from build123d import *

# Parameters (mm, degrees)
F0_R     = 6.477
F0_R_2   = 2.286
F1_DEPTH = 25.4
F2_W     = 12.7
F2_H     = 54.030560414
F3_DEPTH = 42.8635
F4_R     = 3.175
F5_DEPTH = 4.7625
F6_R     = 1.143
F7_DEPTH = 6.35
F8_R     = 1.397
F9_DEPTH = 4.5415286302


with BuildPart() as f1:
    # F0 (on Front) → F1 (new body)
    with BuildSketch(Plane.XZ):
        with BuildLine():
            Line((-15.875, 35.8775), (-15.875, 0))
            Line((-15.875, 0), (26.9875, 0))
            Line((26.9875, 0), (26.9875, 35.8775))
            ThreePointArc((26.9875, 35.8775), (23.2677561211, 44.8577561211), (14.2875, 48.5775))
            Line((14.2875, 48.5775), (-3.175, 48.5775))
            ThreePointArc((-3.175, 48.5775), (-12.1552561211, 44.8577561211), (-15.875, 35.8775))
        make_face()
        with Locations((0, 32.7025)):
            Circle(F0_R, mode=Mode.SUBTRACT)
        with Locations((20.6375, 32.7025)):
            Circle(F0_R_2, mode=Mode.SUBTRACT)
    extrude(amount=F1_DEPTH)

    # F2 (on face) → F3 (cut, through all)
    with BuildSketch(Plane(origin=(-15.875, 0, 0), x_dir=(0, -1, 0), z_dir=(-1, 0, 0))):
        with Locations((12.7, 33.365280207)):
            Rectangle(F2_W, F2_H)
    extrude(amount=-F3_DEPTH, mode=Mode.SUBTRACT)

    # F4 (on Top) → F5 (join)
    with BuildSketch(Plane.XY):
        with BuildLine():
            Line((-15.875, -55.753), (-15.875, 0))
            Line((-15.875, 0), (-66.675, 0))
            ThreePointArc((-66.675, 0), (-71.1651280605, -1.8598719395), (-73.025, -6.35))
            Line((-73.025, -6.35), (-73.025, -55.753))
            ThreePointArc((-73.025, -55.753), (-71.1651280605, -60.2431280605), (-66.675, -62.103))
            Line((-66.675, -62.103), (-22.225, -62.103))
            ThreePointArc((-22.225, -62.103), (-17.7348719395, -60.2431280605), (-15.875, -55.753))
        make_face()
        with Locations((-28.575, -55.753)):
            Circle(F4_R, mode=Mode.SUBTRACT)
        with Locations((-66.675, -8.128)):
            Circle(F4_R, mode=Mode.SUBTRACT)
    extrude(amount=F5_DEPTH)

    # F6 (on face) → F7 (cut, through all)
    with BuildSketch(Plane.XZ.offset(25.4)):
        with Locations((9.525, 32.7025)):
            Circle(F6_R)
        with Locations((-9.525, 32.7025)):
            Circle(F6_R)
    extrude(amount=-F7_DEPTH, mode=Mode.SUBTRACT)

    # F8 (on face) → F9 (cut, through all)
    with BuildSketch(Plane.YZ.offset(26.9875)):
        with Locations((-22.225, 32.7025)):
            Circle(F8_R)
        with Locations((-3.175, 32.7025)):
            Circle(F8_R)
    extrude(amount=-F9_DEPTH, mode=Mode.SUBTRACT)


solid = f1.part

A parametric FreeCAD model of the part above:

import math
import FreeCAD as App
import Part
import Sketcher
from FreeCAD import Vector
Q = App.Units.Quantity

doc = App.newDocument("Part")
body = doc.addObject("PartDesign::Body", "Body")

# Sketch on XZ plane
sketch1 = doc.addObject("Sketcher::SketchObject", "Sketch")
body.addObject(sketch1)
sketch1.AttachmentSupport = (doc.XZ_Plane, [""])
sketch1.MapMode = "FlatFace"
sketch1.addGeometry(Part.LineSegment(Vector(-15.875, 35.8775, 0), Vector(-15.875, 0, 0)), False)
sketch1.addGeometry(Part.LineSegment(Vector(-15.875, 0, 0), Vector(26.9875, 0, 0)), False)
sketch1.addGeometry(Part.LineSegment(Vector(26.9875, 0, 0), Vector(26.9875, 35.8775, 0)), False)
sketch1.addGeometry(Part.ArcOfCircle(Part.Circle(Vector(14.2875, 35.8775, 0), Vector(0, 0, 1), 12.7), math.radians(0), math.radians(90)), False)
sketch1.addGeometry(Part.LineSegment(Vector(14.2875, 48.5775, 0), Vector(-3.175, 48.5775, 0)), False)
sketch1.addGeometry(Part.ArcOfCircle(Part.Circle(Vector(-3.175, 35.8775, 0), Vector(0, 0, 1), 12.7), math.radians(90), math.radians(180)), False)
sketch1.addGeometry(Part.Circle(Vector(0, 32.7025, 0), Vector(0, 0, 1), 6.477), False)
sketch1.addGeometry(Part.Circle(Vector(20.6375, 32.7025, 0), Vector(0, 0, 1), 2.286), False)
sketch1.addConstraint(Sketcher.Constraint("Coincident", 0, 2, 1, 1))
sketch1.addConstraint(Sketcher.Constraint("Coincident", 1, 2, 2, 1))
sketch1.addConstraint(Sketcher.Constraint("Tangent", 2, 2, 3, 1))
sketch1.addConstraint(Sketcher.Constraint("Tangent", 3, 2, 4, 1))
sketch1.addConstraint(Sketcher.Constraint("Tangent", 4, 2, 5, 1))
sketch1.addConstraint(Sketcher.Constraint("Tangent", 5, 2, 0, 1))
sketch1.addConstraint(Sketcher.Constraint("Vertical", 0))
sketch1.addConstraint(Sketcher.Constraint("Horizontal", 1))
sketch1.addConstraint(Sketcher.Constraint("Vertical", 2))
sketch1.addConstraint(Sketcher.Constraint("Horizontal", 4))
sketch1.addConstraint(Sketcher.Constraint("Equal", 3, 5))
sketch1.addConstraint(Sketcher.Constraint("PointOnObject", 6, 3, -2))
sketch1.addConstraint(Sketcher.Constraint("PointOnObject", 0, 2, -1))
sketch1.addConstraint(Sketcher.Constraint("Horizontal", 6, 3, 7, 3))
sketch1.addConstraint(Sketcher.Constraint("Radius", 3, Q("0.5 in")))
sketch1.addConstraint(Sketcher.Constraint("Diameter", 6, Q("0.51 in")))
sketch1.addConstraint(Sketcher.Constraint("Diameter", 7, Q("0.18 in")))
sketch1.addConstraint(Sketcher.Constraint("DistanceX", 1, 1, 1, 2, Q("1.6875 in")))
sketch1.addConstraint(Sketcher.Constraint("DistanceX", 3, 3, 7, 3, Q("0.25 in")))
sketch1.addConstraint(Sketcher.Constraint("DistanceY", 0, 2, 0, 1, Q("1.4125 in")))
sketch1.addConstraint(Sketcher.Constraint("DistanceX", -1, 1, 3, 3, Q("0.5625 in")))
sketch1.addConstraint(Sketcher.Constraint("DistanceY", 6, 3, 5, 3, Q("0.125 in")))
pad1 = doc.addObject("PartDesign::Pad", "Pad")
body.addObject(pad1)
pad1.Profile = sketch1
pad1.Length = Q("1 in")

# Sketch on YZ plane
sketch2 = doc.addObject("Sketcher::SketchObject", "Sketch001")
body.addObject(sketch2)
sketch2.AttachmentSupport = (doc.YZ_Plane, [""])
sketch2.MapMode = "FlatFace"
sketch2.AttachmentOffset = App.Placement(Vector(0, 0, -0.625 * 25.4), App.Rotation())
sketch2.addGeometry(Part.LineSegment(Vector(-6.35, 60.38056, 0), Vector(-6.35, 6.35, 0)), False)
sketch2.addGeometry(Part.LineSegment(Vector(-6.35, 6.35, 0), Vector(-19.05, 6.35, 0)), False)
sketch2.addGeometry(Part.LineSegment(Vector(-19.05, 6.35, 0), Vector(-19.05, 60.38056, 0)), False)
sketch2.addGeometry(Part.LineSegment(Vector(-19.05, 60.38056, 0), Vector(-6.35, 60.38056, 0)), False)
sketch2.addConstraint(Sketcher.Constraint("Coincident", 0, 2, 1, 1))
sketch2.addConstraint(Sketcher.Constraint("Coincident", 1, 2, 2, 1))
sketch2.addConstraint(Sketcher.Constraint("Coincident", 2, 2, 3, 1))
sketch2.addConstraint(Sketcher.Constraint("Coincident", 3, 2, 0, 1))
sketch2.addConstraint(Sketcher.Constraint("Vertical", 0))
sketch2.addConstraint(Sketcher.Constraint("Horizontal", 1))
sketch2.addConstraint(Sketcher.Constraint("Vertical", 2))
sketch2.addConstraint(Sketcher.Constraint("Horizontal", 3))
sketch2.addConstraint(Sketcher.Constraint("DistanceX", 1, 2, 1, 1, Q("0.5 in")))
sketch2.addConstraint(Sketcher.Constraint("DistanceX", 0, 2, -1, 1, Q("0.25 in")))
sketch2.addConstraint(Sketcher.Constraint("DistanceY", -1, 1, 0, 2, Q("0.25 in")))
sketch2.addConstraint(Sketcher.Constraint("DistanceY", 0, 2, 0, 1, Q("54.03056 mm")))
pocket1 = doc.addObject("PartDesign::Pocket", "Pocket")
body.addObject(pocket1)
pocket1.Profile = sketch2
pocket1.Type = "ThroughAll"
pocket1.Reversed = True

# Sketch on XY plane
sketch3 = doc.addObject("Sketcher::SketchObject", "Sketch002")
body.addObject(sketch3)
sketch3.AttachmentSupport = (doc.XY_Plane, [""])
sketch3.MapMode = "FlatFace"
sketch3.addGeometry(Part.LineSegment(Vector(-15.875, -55.753, 0), Vector(-15.875, 0, 0)), False)
sketch3.addGeometry(Part.LineSegment(Vector(-15.875, 0, 0), Vector(-66.675, 0, 0)), False)
sketch3.addGeometry(Part.ArcOfCircle(Part.Circle(Vector(-66.675, -6.35, 0), Vector(0, 0, 1), 6.35), math.radians(90), math.radians(180)), False)
sketch3.addGeometry(Part.LineSegment(Vector(-73.025, -6.35, 0), Vector(-73.025, -55.753, 0)), False)
sketch3.addGeometry(Part.ArcOfCircle(Part.Circle(Vector(-66.675, -55.753, 0), Vector(0, 0, 1), 6.35), math.radians(180), math.radians(270)), False)
sketch3.addGeometry(Part.LineSegment(Vector(-66.675, -62.103, 0), Vector(-22.225, -62.103, 0)), False)
sketch3.addGeometry(Part.ArcOfCircle(Part.Circle(Vector(-22.225, -55.753, 0), Vector(0, 0, 1), 6.35), math.radians(-90), math.radians(0)), False)
sketch3.addGeometry(Part.Circle(Vector(-28.575, -55.753, 0), Vector(0, 0, 1), 3.175), False)
sketch3.addGeometry(Part.Circle(Vector(-66.675, -8.128, 0), Vector(0, 0, 1), 3.175), False)
sketch3.addConstraint(Sketcher.Constraint("Coincident", 0, 2, 1, 1))
sketch3.addConstraint(Sketcher.Constraint("Tangent", 1, 2, 2, 1))
sketch3.addConstraint(Sketcher.Constraint("Tangent", 2, 2, 3, 1))
sketch3.addConstraint(Sketcher.Constraint("Tangent", 3, 2, 4, 1))
sketch3.addConstraint(Sketcher.Constraint("Tangent", 4, 2, 5, 1))
sketch3.addConstraint(Sketcher.Constraint("Tangent", 5, 2, 6, 1))
sketch3.addConstraint(Sketcher.Constraint("Tangent", 6, 2, 0, 1))
sketch3.addConstraint(Sketcher.Constraint("Vertical", 0))
sketch3.addConstraint(Sketcher.Constraint("Horizontal", 1))
sketch3.addConstraint(Sketcher.Constraint("Vertical", 3))
sketch3.addConstraint(Sketcher.Constraint("Horizontal", 5))
sketch3.addConstraint(Sketcher.Constraint("Equal", 2, 4))
sketch3.addConstraint(Sketcher.Constraint("Equal", 4, 6))
sketch3.addConstraint(Sketcher.Constraint("Equal", 7, 8))
sketch3.addConstraint(Sketcher.Constraint("PointOnObject", 0, 2, -1))
sketch3.addConstraint(Sketcher.Constraint("Horizontal", 6, 3, 7, 3))
sketch3.addConstraint(Sketcher.Constraint("Vertical", 4, 3, 8, 3))
sketch3.addConstraint(Sketcher.Constraint("Diameter", 7, Q("0.25 in")))
sketch3.addConstraint(Sketcher.Constraint("DistanceX", 1, 2, 1, 1, Q("2 in")))
sketch3.addConstraint(Sketcher.Constraint("Radius", 2, Q("0.25 in")))
sketch3.addConstraint(Sketcher.Constraint("DistanceX", 4, 3, 7, 3, Q("1.5 in")))
sketch3.addConstraint(Sketcher.Constraint("DistanceY", 0, 1, 0, 2, Q("2.195 in")))
sketch3.addConstraint(Sketcher.Constraint("DistanceY", 8, 3, -1, 1, Q("0.32 in")))
sketch3.addConstraint(Sketcher.Constraint("DistanceX", 2, 3, -1, 1, Q("2.625 in")))
pad2 = doc.addObject("PartDesign::Pad", "Pad001")
body.addObject(pad2)
pad2.Profile = sketch3
pad2.Length = Q("0.1875 in")

# Sketch on XZ plane
sketch4 = doc.addObject("Sketcher::SketchObject", "Sketch003")
body.addObject(sketch4)
sketch4.AttachmentSupport = (doc.XZ_Plane, [""])
sketch4.MapMode = "FlatFace"
sketch4.AttachmentOffset = App.Placement(Vector(0, 0, 1 * 25.4), App.Rotation())
sketch4.addGeometry(Part.Circle(Vector(9.525, 32.7025, 0), Vector(0, 0, 1), 1.143), False)
sketch4.addGeometry(Part.Circle(Vector(-9.525, 32.7025, 0), Vector(0, 0, 1), 1.143), False)
sketch4.addConstraint(Sketcher.Constraint("Equal", 0, 1))
sketch4.addConstraint(Sketcher.Constraint("Symmetric", 0, 3, 1, 3, -2))
sketch4.addConstraint(Sketcher.Constraint("Diameter", 0, Q("0.09 in")))
sketch4.addConstraint(Sketcher.Constraint("DistanceX", 1, 3, 0, 3, Q("0.75 in")))
sketch4.addConstraint(Sketcher.Constraint("DistanceY", -1, 1, 0, 3, Q("1.2875 in")))
pocket2 = doc.addObject("PartDesign::Pocket", "Pocket001")
body.addObject(pocket2)
pocket2.Profile = sketch4
pocket2.Length = Q("0.25 in")

# Sketch on YZ plane
sketch5 = doc.addObject("Sketcher::SketchObject", "Sketch004")
body.addObject(sketch5)
sketch5.AttachmentSupport = (doc.YZ_Plane, [""])
sketch5.MapMode = "FlatFace"
sketch5.AttachmentOffset = App.Placement(Vector(0, 0, 1.0625 * 25.4), App.Rotation())
sketch5.addGeometry(Part.Circle(Vector(-22.225, 32.7025, 0), Vector(0, 0, 1), 1.397), False)
sketch5.addGeometry(Part.Circle(Vector(-3.175, 32.7025, 0), Vector(0, 0, 1), 1.397), False)
sketch5.addConstraint(Sketcher.Constraint("Equal", 0, 1))
sketch5.addConstraint(Sketcher.Constraint("Horizontal", 0, 3, 1, 3))
sketch5.addConstraint(Sketcher.Constraint("Diameter", 0, Q("0.11 in")))
sketch5.addConstraint(Sketcher.Constraint("DistanceX", 0, 3, 1, 3, Q("0.75 in")))
sketch5.addConstraint(Sketcher.Constraint("DistanceX", 0, 3, -1, 1, Q("0.875 in")))
sketch5.addConstraint(Sketcher.Constraint("DistanceY", -1, 1, 0, 3, Q("1.2875 in")))
pocket3 = doc.addObject("PartDesign::Pocket", "Pocket002")
body.addObject(pocket3)
pocket3.Profile = sketch5
pocket3.Length = 4.541529

doc.recompute()
